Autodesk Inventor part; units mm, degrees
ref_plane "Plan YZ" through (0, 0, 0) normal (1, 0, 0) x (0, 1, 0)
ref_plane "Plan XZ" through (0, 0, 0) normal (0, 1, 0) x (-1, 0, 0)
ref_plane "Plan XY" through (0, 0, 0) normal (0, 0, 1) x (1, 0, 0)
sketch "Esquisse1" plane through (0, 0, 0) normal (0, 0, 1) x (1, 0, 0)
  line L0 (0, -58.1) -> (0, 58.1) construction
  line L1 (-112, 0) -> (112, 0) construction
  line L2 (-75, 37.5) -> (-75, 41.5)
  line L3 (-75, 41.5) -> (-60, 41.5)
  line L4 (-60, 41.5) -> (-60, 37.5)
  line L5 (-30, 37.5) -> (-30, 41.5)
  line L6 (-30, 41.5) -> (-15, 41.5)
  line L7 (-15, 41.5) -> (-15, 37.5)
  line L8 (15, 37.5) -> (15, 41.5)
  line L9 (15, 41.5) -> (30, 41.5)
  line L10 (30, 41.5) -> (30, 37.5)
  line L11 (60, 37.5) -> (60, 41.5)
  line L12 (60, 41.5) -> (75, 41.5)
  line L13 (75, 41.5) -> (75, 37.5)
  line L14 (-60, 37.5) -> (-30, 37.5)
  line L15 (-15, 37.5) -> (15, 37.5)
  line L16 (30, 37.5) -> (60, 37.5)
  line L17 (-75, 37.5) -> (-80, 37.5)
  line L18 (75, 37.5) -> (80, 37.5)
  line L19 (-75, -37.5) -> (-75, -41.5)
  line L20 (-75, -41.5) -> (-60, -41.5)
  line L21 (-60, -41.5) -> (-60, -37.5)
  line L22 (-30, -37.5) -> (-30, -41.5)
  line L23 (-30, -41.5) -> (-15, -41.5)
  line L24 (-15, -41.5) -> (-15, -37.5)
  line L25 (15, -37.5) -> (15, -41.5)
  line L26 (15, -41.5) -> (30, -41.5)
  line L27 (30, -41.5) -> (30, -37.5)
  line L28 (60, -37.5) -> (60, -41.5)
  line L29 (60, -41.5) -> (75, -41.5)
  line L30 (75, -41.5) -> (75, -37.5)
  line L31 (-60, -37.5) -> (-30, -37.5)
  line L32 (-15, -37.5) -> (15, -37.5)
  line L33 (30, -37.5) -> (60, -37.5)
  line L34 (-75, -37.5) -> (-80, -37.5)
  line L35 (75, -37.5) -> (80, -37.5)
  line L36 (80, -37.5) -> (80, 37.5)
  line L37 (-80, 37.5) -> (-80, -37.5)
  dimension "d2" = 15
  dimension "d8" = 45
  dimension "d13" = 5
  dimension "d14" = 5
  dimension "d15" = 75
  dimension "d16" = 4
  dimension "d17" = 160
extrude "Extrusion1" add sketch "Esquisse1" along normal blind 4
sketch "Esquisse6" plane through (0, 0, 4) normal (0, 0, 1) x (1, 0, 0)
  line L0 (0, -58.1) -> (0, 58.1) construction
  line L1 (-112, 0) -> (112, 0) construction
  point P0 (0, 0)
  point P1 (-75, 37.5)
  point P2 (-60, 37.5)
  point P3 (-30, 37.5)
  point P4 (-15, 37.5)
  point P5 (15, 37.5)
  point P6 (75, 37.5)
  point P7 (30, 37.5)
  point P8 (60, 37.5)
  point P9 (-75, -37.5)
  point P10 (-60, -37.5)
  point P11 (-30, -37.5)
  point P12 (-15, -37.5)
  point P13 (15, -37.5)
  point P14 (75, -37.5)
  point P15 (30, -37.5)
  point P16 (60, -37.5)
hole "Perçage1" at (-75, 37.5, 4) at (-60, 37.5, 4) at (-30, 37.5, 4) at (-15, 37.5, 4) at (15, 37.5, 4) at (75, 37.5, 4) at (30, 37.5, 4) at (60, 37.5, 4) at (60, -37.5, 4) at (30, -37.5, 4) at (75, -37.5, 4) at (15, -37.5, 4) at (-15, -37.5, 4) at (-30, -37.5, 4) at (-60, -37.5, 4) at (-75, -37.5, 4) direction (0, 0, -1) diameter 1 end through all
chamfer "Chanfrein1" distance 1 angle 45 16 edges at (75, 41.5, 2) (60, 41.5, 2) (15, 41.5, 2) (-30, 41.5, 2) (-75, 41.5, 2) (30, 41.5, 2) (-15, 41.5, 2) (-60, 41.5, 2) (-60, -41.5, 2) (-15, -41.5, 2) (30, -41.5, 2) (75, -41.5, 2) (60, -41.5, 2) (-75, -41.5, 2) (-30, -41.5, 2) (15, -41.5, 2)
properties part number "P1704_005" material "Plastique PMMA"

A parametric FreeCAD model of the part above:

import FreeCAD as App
import Part
import Sketcher
Q = App.Units.Quantity


def edges_at(feature, points):
    """Names of the edges that pass closest to the given points."""
    edges = feature.Shape.Edges
    near = lambda p: min(range(len(edges)), key=lambda i: edges[i].distToShape(Part.Vertex(*p))[0])
    return sorted({f"Edge{near(p) + 1}" for p in points})

doc = App.newDocument("Part")
params = doc.addObject("Spreadsheet::Sheet", "Params")
for row, (alias, value) in enumerate([
    ("sketch1_width", "5 mm"),
    ("sketch1_width2", "15 mm"),
    ("sketch1_height", "4 mm"),
    ("sketch1_height2", "75 mm"),
    ("pad1_length", "4 mm"),
    ("sketch2_diameter", "1 mm"),
    ("hole_diameter", "1 mm"),
    ("chamfer_size", "1 mm"),
], start=1):
    params.set(f"A{row}", alias)
    params.set(f"B{row}", "=" + value)
    params.setAlias(f"B{row}", alias)

body = doc.addObject("PartDesign::Body", "Body")

sketch1 = body.newObject("Sketcher::SketchObject", "Sketch")
sketch1.AttachmentSupport = (doc.getObject("XY_Plane"), [""])
sketch1.MapMode = "FlatFace"
sketch1.addGeometry([
    Part.LineSegment(App.Vector(-75, 41.5, 0), App.Vector(-75, 37.5, 0)),
    Part.LineSegment(App.Vector(-75, 37.5, 0), App.Vector(-80, 37.5, 0)),
    Part.LineSegment(App.Vector(-80, 37.5, 0), App.Vector(-80, -37.5, 0)),
    Part.LineSegment(App.Vector(-80, -37.5, 0), App.Vector(-75, -37.5, 0)),
    Part.LineSegment(App.Vector(-75, -37.5, 0), App.Vector(-75, -41.5, 0)),
    Part.LineSegment(App.Vector(-75, -41.5, 0), App.Vector(-60, -41.5, 0)),
    Part.LineSegment(App.Vector(-60, -41.5, 0), App.Vector(-60, -37.5, 0)),
    Part.LineSegment(App.Vector(-60, -37.5, 0), App.Vector(-30, -37.5, 0)),
    Part.LineSegment(App.Vector(-30, -37.5, 0), App.Vector(-30, -41.5, 0)),
    Part.LineSegment(App.Vector(-30, -41.5, 0), App.Vector(-15, -41.5, 0)),
    Part.LineSegment(App.Vector(-15, -41.5, 0), App.Vector(-15, -37.5, 0)),
    Part.LineSegment(App.Vector(-15, -37.5, 0), App.Vector(15, -37.5, 0)),
    Part.LineSegment(App.Vector(15, -37.5, 0), App.Vector(15, -41.5, 0)),
    Part.LineSegment(App.Vector(15, -41.5, 0), App.Vector(30, -41.5, 0)),
    Part.LineSegment(App.Vector(30, -41.5, 0), App.Vector(30, -37.5, 0)),
    Part.LineSegment(App.Vector(30, -37.5, 0), App.Vector(60, -37.5, 0)),
    Part.LineSegment(App.Vector(60, -37.5, 0), App.Vector(60, -41.5, 0)),
    Part.LineSegment(App.Vector(60, -41.5, 0), App.Vector(75, -41.5, 0)),
    Part.LineSegment(App.Vector(75, -41.5, 0), App.Vector(75, -37.5, 0)),
    Part.LineSegment(App.Vector(75, -37.5, 0), App.Vector(80, -37.5, 0)),
    Part.LineSegment(App.Vector(80, -37.5, 0), App.Vector(80, 37.5, 0)),
    Part.LineSegment(App.Vector(80, 37.5, 0), App.Vector(75, 37.5, 0)),
    Part.LineSegment(App.Vector(75, 37.5, 0), App.Vector(75, 41.5, 0)),
    Part.LineSegment(App.Vector(75, 41.5, 0), App.Vector(60, 41.5, 0)),
    Part.LineSegment(App.Vector(60, 41.5, 0), App.Vector(60, 37.5, 0)),
    Part.LineSegment(App.Vector(60, 37.5, 0), App.Vector(30, 37.5, 0)),
    Part.LineSegment(App.Vector(30, 37.5, 0), App.Vector(30, 41.5, 0)),
    Part.LineSegment(App.Vector(30, 41.5, 0), App.Vector(15, 41.5, 0)),
    Part.LineSegment(App.Vector(15, 41.5, 0), App.Vector(15, 37.5, 0)),
    Part.LineSegment(App.Vector(15, 37.5, 0), App.Vector(-15, 37.5, 0)),
    Part.LineSegment(App.Vector(-15, 37.5, 0), App.Vector(-15, 41.5, 0)),
    Part.LineSegment(App.Vector(-15, 41.5, 0), App.Vector(-30, 41.5, 0)),
    Part.LineSegment(App.Vector(-30, 41.5, 0), App.Vector(-30, 37.5, 0)),
    Part.LineSegment(App.Vector(-30, 37.5, 0), App.Vector(-60, 37.5, 0)),
    Part.LineSegment(App.Vector(-60, 37.5, 0), App.Vector(-60, 41.5, 0)),
    Part.LineSegment(App.Vector(-60, 41.5, 0), App.Vector(-75, 41.5, 0)),
], False)
sketch1.addConstraint([
    Sketcher.Constraint("Coincident", 0, 2, 1, 1),
    Sketcher.Constraint("Coincident", 1, 2, 2, 1),
    Sketcher.Constraint("Coincident", 2, 2, 3, 1),
    Sketcher.Constraint("Coincident", 3, 2, 4, 1),
    Sketcher.Constraint("Coincident", 4, 2, 5, 1),
    Sketcher.Constraint("Coincident", 5, 2, 6, 1),
    Sketcher.Constraint("Coincident", 6, 2, 7, 1),
    Sketcher.Constraint("Coincident", 7, 2, 8, 1),
    Sketcher.Constraint("Coincident", 8, 2, 9, 1),
    Sketcher.Constraint("Coincident", 9, 2, 10, 1),
    Sketcher.Constraint("Coincident", 10, 2, 11, 1),
    Sketcher.Constraint("Coincident", 11, 2, 12, 1),
    Sketcher.Constraint("Coincident", 12, 2, 13, 1),
    Sketcher.Constraint("Coincident", 13, 2, 14, 1),
    Sketcher.Constraint("Coincident", 14, 2, 15, 1),
    Sketcher.Constraint("Coincident", 15, 2, 16, 1),
    Sketcher.Constraint("Coincident", 16, 2, 17, 1),
    Sketcher.Constraint("Coincident", 17, 2, 18, 1),
    Sketcher.Constraint("Coincident", 18, 2, 19, 1),
    Sketcher.Constraint("Coincident", 19, 2, 20, 1),
    Sketcher.Constraint("Coincident", 20, 2, 21, 1),
    Sketcher.Constraint("Coincident", 21, 2, 22, 1),
    Sketcher.Constraint("Coincident", 22, 2, 23, 1),
    Sketcher.Constraint("Coincident", 23, 2, 24, 1),
    Sketcher.Constraint("Coincident", 24, 2, 25, 1),
    Sketcher.Constraint("Coincident", 25, 2, 26, 1),
    Sketcher.Constraint("Coincident", 26, 2, 27, 1),
    Sketcher.Constraint("Coincident", 27, 2, 28, 1),
    Sketcher.Constraint("Coincident", 28, 2, 29, 1),
    Sketcher.Constraint("Coincident", 29, 2, 30, 1),
    Sketcher.Constraint("Coincident", 30, 2, 31, 1),
    Sketcher.Constraint("Coincident", 31, 2, 32, 1),
    Sketcher.Constraint("Coincident", 32, 2, 33, 1),
    Sketcher.Constraint("Coincident", 33, 2, 34, 1),
    Sketcher.Constraint("Coincident", 34, 2, 35, 1),
    Sketcher.Constraint("Coincident", 35, 2, 0, 1),
    Sketcher.Constraint("Vertical", 0),
    Sketcher.Constraint("Horizontal", 1),
    Sketcher.Constraint("Vertical", 2),
    Sketcher.Constraint("Horizontal", 3),
    Sketcher.Constraint("Vertical", 4),
    Sketcher.Constraint("Horizontal", 5),
    Sketcher.Constraint("Vertical", 6),
    Sketcher.Constraint("Horizontal", 7),
    Sketcher.Constraint("Vertical", 8),
    Sketcher.Constraint("Horizontal", 9),
    Sketcher.Constraint("Vertical", 10),
    Sketcher.Constraint("Horizontal", 11),
    Sketcher.Constraint("Vertical", 12),
    Sketcher.Constraint("Horizontal", 13),
    Sketcher.Constraint("Vertical", 14),
    Sketcher.Constraint("Horizontal", 15),
    Sketcher.Constraint("Vertical", 16),
    Sketcher.Constraint("Horizontal", 17),
    Sketcher.Constraint("Vertical", 18),
    Sketcher.Constraint("Horizontal", 19),
    Sketcher.Constraint("Vertical", 20),
    Sketcher.Constraint("Horizontal", 21),
    Sketcher.Constraint("Vertical", 22),
    Sketcher.Constraint("Horizontal", 23),
    Sketcher.Constraint("Vertical", 24),
    Sketcher.Constraint("Horizontal", 25),
    Sketcher.Constraint("Vertical", 26),
    Sketcher.Constraint("Horizontal", 27),
    Sketcher.Constraint("Vertical", 28),
    Sketcher.Constraint("Horizontal", 29),
    Sketcher.Constraint("Vertical", 30),
    Sketcher.Constraint("Horizontal", 31),
    Sketcher.Constraint("Vertical", 32),
    Sketcher.Constraint("Horizontal", 33),
    Sketcher.Constraint("Vertical", 34),
    Sketcher.Constraint("Horizontal", 35),
    Sketcher.Constraint("Symmetric", 0, 2, 18, 2, -1, 1),
    Sketcher.Constraint("Symmetric", 2, 2, 20, 2, -1, 1),
    Sketcher.Constraint("Symmetric", 4, 2, 22, 2, -1, 1),
    Sketcher.Constraint("Symmetric", 6, 2, 24, 2, -1, 1),
    Sketcher.Constraint("Symmetric", 8, 2, 26, 2, -1, 1),
    Sketcher.Constraint("Symmetric", 10, 2, 28, 2, -1, 1),
    Sketcher.Constraint("Symmetric", 12, 2, 30, 2, -1, 1),
    Sketcher.Constraint("Symmetric", 14, 2, 32, 2, -1, 1),
    Sketcher.Constraint("Symmetric", 16, 2, 34, 2, -1, 1),
    Sketcher.Constraint("Symmetric", 9, 2, 12, 2, -2),
    Sketcher.Constraint("Symmetric", 7, 2, 14, 2, -2),
    Sketcher.Constraint("Symmetric", 5, 2, 16, 2, -2),
    Sketcher.Constraint("Symmetric", 3, 2, 18, 2, -2),
    Sketcher.Constraint("Horizontal", 3, 2, 6, 2),
    Sketcher.Constraint("Horizontal", 5, 2, 8, 2),
    Sketcher.Constraint("Horizontal", 7, 2, 10, 2),
    Sketcher.Constraint("Equal", 5, 9),
    Sketcher.Constraint("Equal", 7, 11),
    Sketcher.Constraint("DistanceX", 1, 2, 1, 1, Q("5 mm")),
    Sketcher.Constraint("DistanceX", 5, 1, 5, 2, Q("15 mm")),
    Sketcher.Constraint("DistanceY", 0, 2, 0, 1, Q("4 mm")),
    Sketcher.Constraint("DistanceY", 2, 2, 2, 1, Q("75 mm")),
    Sketcher.Constraint("DistanceX", 0, 2, -1, 1, Q("75 mm")),
])
sketch1.setExpression("Constraints[90]", "Params.sketch1_width")
sketch1.setExpression("Constraints[91]", "Params.sketch1_width2")
sketch1.setExpression("Constraints[92]", "Params.sketch1_height")
sketch1.setExpression("Constraints[93]", "Params.sketch1_height2")
pad1 = body.newObject("PartDesign::Pad", "Pad")
pad1.Profile = sketch1
pad1.setExpression("Length", "Params.pad1_length")

sketch2 = body.newObject("Sketcher::SketchObject", "Sketch001")
sketch2.AttachmentSupport = (doc.getObject("XY_Plane"), [""])
sketch2.MapMode = "FlatFace"
sketch2.AttachmentOffset = App.Placement(App.Vector(0, 0, 4), App.Rotation())
sketch2.addGeometry([
    Part.Circle(App.Vector(-75, 37.5, 0), App.Vector(0, 0, 1), 0.5),
    Part.Circle(App.Vector(-60, 37.5, 0), App.Vector(0, 0, 1), 0.5),
    Part.Circle(App.Vector(-30, 37.5, 0), App.Vector(0, 0, 1), 0.5),
    Part.Circle(App.Vector(-15, 37.5, 0), App.Vector(0, 0, 1), 0.5),
    Part.Circle(App.Vector(15, 37.5, 0), App.Vector(0, 0, 1), 0.5),
    Part.Circle(App.Vector(75, 37.5, 0), App.Vector(0, 0, 1), 0.5),
    Part.Circle(App.Vector(30, 37.5, 0), App.Vector(0, 0, 1), 0.5),
    Part.Circle(App.Vector(60, 37.5, 0), App.Vector(0, 0, 1), 0.5),
    Part.Circle(App.Vector(60, -37.5, 0), App.Vector(0, 0, 1), 0.5),
    Part.Circle(App.Vector(30, -37.5, 0), App.Vector(0, 0, 1), 0.5),
    Part.Circle(App.Vector(75, -37.5, 0), App.Vector(0, 0, 1), 0.5),
    Part.Circle(App.Vector(15, -37.5, 0), App.Vector(0, 0, 1), 0.5),
    Part.Circle(App.Vector(-15, -37.5, 0), App.Vector(0, 0, 1), 0.5),
    Part.Circle(App.Vector(-30, -37.5, 0), App.Vector(0, 0, 1), 0.5),
    Part.Circle(App.Vector(-60, -37.5, 0), App.Vector(0, 0, 1), 0.5),
    Part.Circle(App.Vector(-75, -37.5, 0), App.Vector(0, 0, 1), 0.5),
], False)
sketch2.addConstraint([
    Sketcher.Constraint("Equal", 0, 1),
    Sketcher.Constraint("Equal", 1, 2),
    Sketcher.Constraint("Equal", 2, 3),
    Sketcher.Constraint("Equal", 3, 4),
    Sketcher.Constraint("Equal", 4, 5),
    Sketcher.Constraint("Equal", 5, 6),
    Sketcher.Constraint("Equal", 6, 7),
    Sketcher.Constraint("Equal", 7, 8),
    Sketcher.Constraint("Equal", 8, 9),
    Sketcher.Constraint("Equal", 9, 10),
    Sketcher.Constraint("Equal", 10, 11),
    Sketcher.Constraint("Equal", 11, 12),
    Sketcher.Constraint("Equal", 12, 13),
    Sketcher.Constraint("Equal", 13, 14),
    Sketcher.Constraint("Equal", 14, 15),
    Sketcher.Constraint("Symmetric", 1, 3, 8, 3, -1, 1),
    Sketcher.Constraint("Symmetric", 2, 3, 9, 3, -1, 1),
    Sketcher.Constraint("Symmetric", 0, 3, 10, 3, -1, 1),
    Sketcher.Constraint("Symmetric", 3, 3, 11, 3, -1, 1),
    Sketcher.Constraint("Symmetric", 4, 3, 12, 3, -1, 1),
    Sketcher.Constraint("Symmetric", 6, 3, 13, 3, -1, 1),
    Sketcher.Constraint("Symmetric", 7, 3, 14, 3, -1, 1),
    Sketcher.Constraint("Symmetric", 5, 3, 15, 3, -1, 1),
    Sketcher.Constraint("Symmetric", 3, 3, 4, 3, -2),
    Sketcher.Constraint("Symmetric", 0, 3, 5, 3, -2),
    Sketcher.Constraint("Symmetric", 2, 3, 6, 3, -2),
    Sketcher.Constraint("Symmetric", 1, 3, 7, 3, -2),
    Sketcher.Constraint("Horizontal", 0, 3, 1, 3),
    Sketcher.Constraint("Horizontal", 1, 3, 2, 3),
    Sketcher.Constraint("Horizontal", 2, 3, 3, 3),
    Sketcher.Constraint("Diameter", 0, Q("1 mm")),
    Sketcher.Constraint("DistanceX", 0, 3, -1, 1, Q("75 mm")),
    Sketcher.Constraint("DistanceX", 1, 3, -1, 1, Q("60 mm")),
    Sketcher.Constraint("DistanceX", 2, 3, -1, 1, Q("30 mm")),
    Sketcher.Constraint("DistanceX", 3, 3, -1, 1, Q("15 mm")),
    Sketcher.Constraint("DistanceY", 8, 3, 7, 3, Q("75 mm")),
])
sketch2.setExpression("Constraints[30]", "Params.sketch2_diameter")
doc.recompute()
hole = body.newObject("PartDesign::Hole", "Hole")
hole.Profile = sketch2
hole.ThreadType = "None"
hole.setExpression("Diameter", "Params.hole_diameter")
hole.DepthType = "ThroughAll"
doc.recompute()

chamfer = body.newObject("PartDesign::Chamfer", "Chamfer")
chamfer.Base = (hole, edges_at(hole, [
    (75, 41.5, 2),
    (60, 41.5, 2),
    (15, 41.5, 2),
    (-30, 41.5, 2),
    (-75, 41.5, 2),
    (30, 41.5, 2),
    (-15, 41.5, 2),
    (-60, 41.5, 2),
    (-60, -41.5, 2),
    (-15, -41.5, 2),
    (30, -41.5, 2),
    (75, -41.5, 2),
    (60, -41.5, 2),
    (-75, -41.5, 2),
    (-30, -41.5, 2),
    (15, -41.5, 2),
]))
chamfer.setExpression("Size", "Params.chamfer_size")

doc.recompute()
